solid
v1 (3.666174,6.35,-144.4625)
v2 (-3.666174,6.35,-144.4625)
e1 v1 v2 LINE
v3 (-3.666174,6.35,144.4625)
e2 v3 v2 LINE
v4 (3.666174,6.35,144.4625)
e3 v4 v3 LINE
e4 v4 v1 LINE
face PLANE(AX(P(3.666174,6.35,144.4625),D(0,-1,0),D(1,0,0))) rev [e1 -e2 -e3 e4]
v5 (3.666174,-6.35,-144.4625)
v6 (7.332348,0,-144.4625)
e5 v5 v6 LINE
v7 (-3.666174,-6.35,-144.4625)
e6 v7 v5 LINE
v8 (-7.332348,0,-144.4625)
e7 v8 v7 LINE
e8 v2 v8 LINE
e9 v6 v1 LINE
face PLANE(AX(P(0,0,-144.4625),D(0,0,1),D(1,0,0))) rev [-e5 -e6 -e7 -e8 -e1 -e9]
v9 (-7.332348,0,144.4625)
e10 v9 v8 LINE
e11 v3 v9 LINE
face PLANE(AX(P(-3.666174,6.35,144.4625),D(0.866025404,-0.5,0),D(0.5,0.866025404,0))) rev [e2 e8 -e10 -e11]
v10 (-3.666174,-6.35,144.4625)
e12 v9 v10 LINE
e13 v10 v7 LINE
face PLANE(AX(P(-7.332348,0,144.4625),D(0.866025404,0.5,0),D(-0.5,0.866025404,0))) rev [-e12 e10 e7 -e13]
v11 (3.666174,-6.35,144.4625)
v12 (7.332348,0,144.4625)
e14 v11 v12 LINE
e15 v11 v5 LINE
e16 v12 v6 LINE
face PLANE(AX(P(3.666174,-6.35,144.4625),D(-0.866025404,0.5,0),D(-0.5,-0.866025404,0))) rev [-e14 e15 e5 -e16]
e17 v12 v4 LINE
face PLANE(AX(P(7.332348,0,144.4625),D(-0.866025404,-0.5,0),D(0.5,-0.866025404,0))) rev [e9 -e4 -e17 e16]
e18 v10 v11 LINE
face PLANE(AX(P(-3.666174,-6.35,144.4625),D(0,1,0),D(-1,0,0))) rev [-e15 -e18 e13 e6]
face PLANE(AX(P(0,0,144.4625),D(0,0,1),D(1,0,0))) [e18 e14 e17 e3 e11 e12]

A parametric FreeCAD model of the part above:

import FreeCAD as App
import Part
import Sketcher
Q = App.Units.Quantity

doc = App.newDocument("Part")
body = doc.addObject("PartDesign::Body", "Body")

# Sketch on XY plane
sketch1 = body.newObject("Sketcher::SketchObject", "Sketch")
sketch1.AttachmentSupport = (doc.getObject("XY_Plane"), [""])
sketch1.MapMode = "FlatFace"
sketch1.addGeometry(Part.LineSegment(App.Vector(7, 0, 0), App.Vector(4, 6, 0)), False)
sketch1.addGeometry(Part.LineSegment(App.Vector(4, 6, 0), App.Vector(-4, 6, 0)), False)
sketch1.addGeometry(Part.LineSegment(App.Vector(-4, 6, 0), App.Vector(-7, 0, 0)), False)
sketch1.addGeometry(Part.LineSegment(App.Vector(-7, 0, 0), App.Vector(-4, -6, 0)), False)
sketch1.addGeometry(Part.LineSegment(App.Vector(-4, -6, 0), App.Vector(4, -6, 0)), False)
sketch1.addGeometry(Part.LineSegment(App.Vector(4, -6, 0), App.Vector(7, 0, 0)), False)
sketch1.addConstraint(Sketcher.Constraint("Coincident", 0, 2, 1, 1))
sketch1.addConstraint(Sketcher.Constraint("Coincident", 1, 2, 2, 1))
sketch1.addConstraint(Sketcher.Constraint("Coincident", 2, 2, 3, 1))
sketch1.addConstraint(Sketcher.Constraint("Coincident", 3, 2, 4, 1))
sketch1.addConstraint(Sketcher.Constraint("Coincident", 4, 2, 5, 1))
sketch1.addConstraint(Sketcher.Constraint("Coincident", 5, 2, 0, 1))
sketch1.addConstraint(Sketcher.Constraint("Horizontal", 1))
sketch1.addConstraint(Sketcher.Constraint("Horizontal", 4))
sketch1.addConstraint(Sketcher.Constraint("Symmetric", 0, 2, 3, 2, -1, 1))
sketch1.addConstraint(Sketcher.Constraint("Symmetric", 2, 2, 5, 2, -1, 1))
sketch1.addConstraint(Sketcher.Constraint("PointOnObject", 2, 2, -1))
sketch1.addConstraint(Sketcher.Constraint("Parallel", 2, 5))
sketch1.addConstraint(Sketcher.Constraint("Vertical", 1, 2, 3, 2))
sketch1.addConstraint(Sketcher.Constraint("Angle", 0, Q("120 deg")))
sketch1.addConstraint(Sketcher.Constraint("DistanceY", 3, 2, 1, 2, Q("0.5 in")))
sketch1.addConstraint(Sketcher.Constraint("DistanceX", 1, 2, 1, 1, Q("7.332348 mm")))
pad1 = body.newObject("PartDesign::Pad", "Pad")
pad1.Profile = sketch1
pad1.Length = Q("11.375 in")
pad1.Midplane = True

doc.recompute()
